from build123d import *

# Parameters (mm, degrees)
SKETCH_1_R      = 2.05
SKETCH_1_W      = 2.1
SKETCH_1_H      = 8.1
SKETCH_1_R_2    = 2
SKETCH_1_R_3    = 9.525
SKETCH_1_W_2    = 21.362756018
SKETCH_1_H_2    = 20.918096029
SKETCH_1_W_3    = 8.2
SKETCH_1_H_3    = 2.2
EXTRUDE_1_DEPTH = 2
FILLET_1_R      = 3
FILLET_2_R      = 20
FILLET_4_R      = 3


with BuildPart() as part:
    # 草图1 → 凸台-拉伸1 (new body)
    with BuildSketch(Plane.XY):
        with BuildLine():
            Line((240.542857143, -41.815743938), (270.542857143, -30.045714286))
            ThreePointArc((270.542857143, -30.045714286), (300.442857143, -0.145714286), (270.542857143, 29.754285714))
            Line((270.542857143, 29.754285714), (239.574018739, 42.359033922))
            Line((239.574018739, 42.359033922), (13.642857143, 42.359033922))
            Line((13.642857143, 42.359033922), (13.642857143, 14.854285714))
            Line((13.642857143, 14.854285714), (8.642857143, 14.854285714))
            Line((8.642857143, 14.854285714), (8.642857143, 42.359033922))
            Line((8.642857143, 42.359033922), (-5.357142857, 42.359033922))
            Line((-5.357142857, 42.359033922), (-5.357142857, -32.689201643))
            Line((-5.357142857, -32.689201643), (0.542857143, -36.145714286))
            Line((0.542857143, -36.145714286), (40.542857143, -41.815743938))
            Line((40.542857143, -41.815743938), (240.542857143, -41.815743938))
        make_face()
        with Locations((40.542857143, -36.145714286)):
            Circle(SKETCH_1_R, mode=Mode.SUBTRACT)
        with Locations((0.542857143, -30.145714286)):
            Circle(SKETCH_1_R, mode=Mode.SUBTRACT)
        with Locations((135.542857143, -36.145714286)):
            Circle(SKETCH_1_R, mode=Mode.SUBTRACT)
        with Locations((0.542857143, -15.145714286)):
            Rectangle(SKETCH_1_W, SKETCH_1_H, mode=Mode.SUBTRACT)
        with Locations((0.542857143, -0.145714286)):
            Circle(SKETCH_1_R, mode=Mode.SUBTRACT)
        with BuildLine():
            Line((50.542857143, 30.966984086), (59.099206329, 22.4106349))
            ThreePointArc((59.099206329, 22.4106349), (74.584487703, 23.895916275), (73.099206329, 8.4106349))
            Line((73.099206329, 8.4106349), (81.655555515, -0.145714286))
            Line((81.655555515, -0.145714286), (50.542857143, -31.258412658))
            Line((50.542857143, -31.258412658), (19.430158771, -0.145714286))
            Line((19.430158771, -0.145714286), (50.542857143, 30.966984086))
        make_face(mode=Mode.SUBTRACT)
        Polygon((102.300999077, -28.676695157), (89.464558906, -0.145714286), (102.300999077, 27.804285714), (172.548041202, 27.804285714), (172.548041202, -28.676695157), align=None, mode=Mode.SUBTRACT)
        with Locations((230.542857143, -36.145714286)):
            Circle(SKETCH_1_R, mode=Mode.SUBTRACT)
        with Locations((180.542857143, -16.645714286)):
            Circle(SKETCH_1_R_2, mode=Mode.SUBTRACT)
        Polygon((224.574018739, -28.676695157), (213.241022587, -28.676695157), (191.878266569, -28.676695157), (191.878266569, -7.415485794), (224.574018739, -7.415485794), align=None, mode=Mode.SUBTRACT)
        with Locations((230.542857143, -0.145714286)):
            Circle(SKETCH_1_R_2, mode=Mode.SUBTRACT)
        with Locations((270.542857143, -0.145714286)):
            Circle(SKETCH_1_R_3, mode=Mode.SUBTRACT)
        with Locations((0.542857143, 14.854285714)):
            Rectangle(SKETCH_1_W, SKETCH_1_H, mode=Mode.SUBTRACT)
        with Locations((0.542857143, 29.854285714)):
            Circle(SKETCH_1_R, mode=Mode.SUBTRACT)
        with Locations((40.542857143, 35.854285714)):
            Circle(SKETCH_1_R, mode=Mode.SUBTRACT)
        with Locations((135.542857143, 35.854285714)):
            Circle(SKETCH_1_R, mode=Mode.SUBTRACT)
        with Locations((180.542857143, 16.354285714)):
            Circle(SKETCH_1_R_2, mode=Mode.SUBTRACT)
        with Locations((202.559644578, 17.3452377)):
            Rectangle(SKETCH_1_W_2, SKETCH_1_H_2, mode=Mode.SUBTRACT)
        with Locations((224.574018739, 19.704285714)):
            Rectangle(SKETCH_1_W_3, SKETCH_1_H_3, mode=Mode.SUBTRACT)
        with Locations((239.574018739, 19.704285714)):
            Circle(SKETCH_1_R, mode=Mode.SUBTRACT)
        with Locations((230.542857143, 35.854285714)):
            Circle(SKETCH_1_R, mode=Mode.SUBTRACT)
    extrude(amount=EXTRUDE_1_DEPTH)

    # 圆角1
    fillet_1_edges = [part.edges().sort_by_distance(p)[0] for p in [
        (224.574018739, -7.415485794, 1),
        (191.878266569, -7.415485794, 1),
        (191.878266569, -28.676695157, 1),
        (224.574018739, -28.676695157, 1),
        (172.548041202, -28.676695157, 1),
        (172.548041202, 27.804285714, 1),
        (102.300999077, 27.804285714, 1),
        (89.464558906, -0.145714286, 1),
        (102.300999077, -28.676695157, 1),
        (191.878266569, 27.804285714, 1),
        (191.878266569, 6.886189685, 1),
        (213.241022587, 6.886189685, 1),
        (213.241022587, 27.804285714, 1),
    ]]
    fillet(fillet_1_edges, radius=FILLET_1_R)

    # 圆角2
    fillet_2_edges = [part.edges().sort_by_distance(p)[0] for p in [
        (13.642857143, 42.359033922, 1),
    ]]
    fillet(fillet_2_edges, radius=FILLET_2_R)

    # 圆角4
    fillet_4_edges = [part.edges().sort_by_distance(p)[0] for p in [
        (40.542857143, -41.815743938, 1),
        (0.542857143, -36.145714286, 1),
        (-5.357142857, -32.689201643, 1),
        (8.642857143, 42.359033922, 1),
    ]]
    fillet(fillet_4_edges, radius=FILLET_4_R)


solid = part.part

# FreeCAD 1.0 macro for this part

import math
import FreeCAD as App
import Part
import Sketcher

V = App.Vector
Q = App.Units.Quantity


def edges_at(feature, points):
    """Names of the edges that pass closest to the given points."""
    edges = feature.Shape.Edges
    near = lambda p: min(range(len(edges)), key=lambda i: edges[i].distToShape(Part.Vertex(*p))[0])
    return sorted({f"Edge{near(p) + 1}" for p in points})

doc = App.newDocument("Part")
body = doc.addObject("PartDesign::Body", "Body")

# Sketch on XY plane
sketch1 = body.newObject("Sketcher::SketchObject", "Sketch")
sketch1.AttachmentSupport = (doc.getObject("XY_Plane"), [""])
sketch1.MapMode = "FlatFace"
sketch1.addGeometry([
    Part.LineSegment(V(240.5, -41.8, 0), V(270.5, -30, 0)),  # 0
    Part.ArcOfCircle(Part.Circle(V(270.5, -0.1, 0), V(0, 0, 1), 29.9), math.radians(-90), math.radians(90)),  # 1
    Part.LineSegment(V(270.5, 29.8, 0), V(239.6, 42.4, 0)),  # 2
    Part.LineSegment(V(239.6, 42.4, 0), V(13.6, 42.4, 0)),  # 3
    Part.LineSegment(V(13.6, 42.4, 0), V(13.6, 14.9, 0)),  # 4
    Part.LineSegment(V(13.6, 14.9, 0), V(8.6, 14.9, 0)),  # 5
    Part.LineSegment(V(8.6, 14.9, 0), V(8.6, 42.4, 0)),  # 6
    Part.LineSegment(V(8.6, 42.4, 0), V(-5.4, 42.4, 0)),  # 7
    Part.LineSegment(V(-5.4, 42.4, 0), V(-5.4, -32.7, 0)),  # 8
    Part.LineSegment(V(-5.4, -32.7, 0), V(0.5, -36.1, 0)),  # 9
    Part.LineSegment(V(0.5, -36.1, 0), V(40.5, -41.8, 0)),  # 10
    Part.LineSegment(V(40.5, -41.8, 0), V(240.5, -41.8, 0)),  # 11
    Part.Circle(V(0.5, -30.1, 0), V(0, 0, 1), 2),  # 12
    Part.Circle(V(40.5, -36.1, 0), V(0, 0, 1), 2),  # 13
    Part.Circle(V(135.5, -36.1, 0), V(0, 0, 1), 2),  # 14
    Part.LineSegment(V(1.6, -19.2, 0), V(-0.5, -19.2, 0)),  # 15
    Part.LineSegment(V(-0.5, -19.2, 0), V(-0.5, -11.1, 0)),  # 16
    Part.LineSegment(V(-0.5, -11.1, 0), V(1.6, -11.1, 0)),  # 17
    Part.LineSegment(V(1.6, -11.1, 0), V(1.6, -19.2, 0)),  # 18
    Part.LineSegment(V(172.5, -28.7, 0), V(102.3, -28.7, 0)),  # 19
    Part.LineSegment(V(102.3, -28.7, 0), V(89.5, -0.1, 0)),  # 20
    Part.LineSegment(V(89.5, -0.1, 0), V(102.3, 27.8, 0)),  # 21
    Part.LineSegment(V(102.3, 27.8, 0), V(172.5, 27.8, 0)),  # 22
    Part.LineSegment(V(172.5, 27.8, 0), V(172.5, -28.7, 0)),  # 23
    Part.Circle(V(230.5, -36.1, 0), V(0, 0, 1), 2),  # 24
    Part.Circle(V(180.5, -16.6, 0), V(0, 0, 1), 2),  # 25
    Part.LineSegment(V(224.6, -7.4, 0), V(224.6, -28.7, 0)),  # 26
    Part.LineSegment(V(224.6, -28.7, 0), V(191.9, -28.7, 0)),  # 27
    Part.LineSegment(V(191.9, -28.7, 0), V(191.9, -7.4, 0)),  # 28
    Part.LineSegment(V(191.9, -7.4, 0), V(224.6, -7.4, 0)),  # 29
    Part.Circle(V(0.5, -0.1, 0), V(0, 0, 1), 2),  # 30
    Part.LineSegment(V(19.4, -0.1, 0), V(50.5, 31, 0)),  # 31
    Part.LineSegment(V(50.5, 31, 0), V(59.1, 22.4, 0)),  # 32
    Part.ArcOfCircle(Part.Circle(V(67.5, 16.8, 0), V(0, 0, 1), 10.1), math.radians(-56), math.radians(146)),  # 33
    Part.LineSegment(V(73.1, 8.4, 0), V(81.7, -0.1, 0)),  # 34
    Part.LineSegment(V(81.7, -0.1, 0), V(50.5, -31.3, 0)),  # 35
    Part.LineSegment(V(50.5, -31.3, 0), V(19.4, -0.1, 0)),  # 36
    Part.LineSegment(V(1.6, 10.8, 0), V(-0.5, 10.8, 0)),  # 37
    Part.LineSegment(V(-0.5, 10.8, 0), V(-0.5, 18.9, 0)),  # 38
    Part.LineSegment(V(-0.5, 18.9, 0), V(1.6, 18.9, 0)),  # 39
    Part.LineSegment(V(1.6, 18.9, 0), V(1.6, 10.8, 0)),  # 40
    Part.Circle(V(0.5, 29.9, 0), V(0, 0, 1), 2),  # 41
    Part.Circle(V(40.5, 35.9, 0), V(0, 0, 1), 2),  # 42
    Part.Circle(V(135.5, 35.9, 0), V(0, 0, 1), 2),  # 43
    Part.Circle(V(180.5, 16.4, 0), V(0, 0, 1), 2),  # 44
    Part.LineSegment(V(213.2, 6.9, 0), V(191.9, 6.9, 0)),  # 45
    Part.LineSegment(V(191.9, 6.9, 0), V(191.9, 27.8, 0)),  # 46
    Part.LineSegment(V(191.9, 27.8, 0), V(213.2, 27.8, 0)),  # 47
    Part.LineSegment(V(213.2, 27.8, 0), V(213.2, 6.9, 0)),  # 48
    Part.Circle(V(230.5, -0.1, 0), V(0, 0, 1), 2),  # 49
    Part.Circle(V(270.5, -0.1, 0), V(0, 0, 1), 9.5),  # 50
    Part.LineSegment(V(228.7, 18.6, 0), V(220.5, 18.6, 0)),  # 51
    Part.LineSegment(V(220.5, 18.6, 0), V(220.5, 20.8, 0)),  # 52
    Part.LineSegment(V(220.5, 20.8, 0), V(228.7, 20.8, 0)),  # 53
    Part.LineSegment(V(228.7, 20.8, 0), V(228.7, 18.6, 0)),  # 54
    Part.Circle(V(239.6, 19.7, 0), V(0, 0, 1), 2),  # 55
    Part.Circle(V(230.5, 35.9, 0), V(0, 0, 1), 2),  # 56
], False)
sketch1.addConstraint([
    Sketcher.Constraint("Coincident", 0, 2, 1, 1),
    Sketcher.Constraint("Coincident", 1, 2, 2, 1),
    Sketcher.Constraint("Coincident", 2, 2, 3, 1),
    Sketcher.Constraint("Coincident", 3, 2, 4, 1),
    Sketcher.Constraint("Coincident", 4, 2, 5, 1),
    Sketcher.Constraint("Coincident", 5, 2, 6, 1),
    Sketcher.Constraint("Coincident", 6, 2, 7, 1),
    Sketcher.Constraint("Coincident", 7, 2, 8, 1),
    Sketcher.Constraint("Coincident", 8, 2, 9, 1),
    Sketcher.Constraint("Coincident", 9, 2, 10, 1),
    Sketcher.Constraint("Coincident", 10, 2, 11, 1),
    Sketcher.Constraint("Coincident", 11, 2, 0, 1),
    Sketcher.Constraint("Coincident", 15, 2, 16, 1),
    Sketcher.Constraint("Coincident", 16, 2, 17, 1),
    Sketcher.Constraint("Coincident", 17, 2, 18, 1),
    Sketcher.Constraint("Coincident", 18, 2, 15, 1),
    Sketcher.Constraint("Coincident", 19, 2, 20, 1),
    Sketcher.Constraint("Coincident", 20, 2, 21, 1),
    Sketcher.Constraint("Coincident", 21, 2, 22, 1),
    Sketcher.Constraint("Coincident", 22, 2, 23, 1),
    Sketcher.Constraint("Coincident", 23, 2, 19, 1),
    Sketcher.Constraint("Coincident", 26, 2, 27, 1),
    Sketcher.Constraint("Coincident", 27, 2, 28, 1),
    Sketcher.Constraint("Coincident", 28, 2, 29, 1),
    Sketcher.Constraint("Coincident", 29, 2, 26, 1),
    Sketcher.Constraint("Coincident", 31, 2, 32, 1),
    Sketcher.Constraint("Coincident", 32, 2, 33, 2),
    Sketcher.Constraint("Coincident", 33, 1, 34, 1),
    Sketcher.Constraint("Coincident", 34, 2, 35, 1),
    Sketcher.Constraint("Coincident", 35, 2, 36, 1),
    Sketcher.Constraint("Coincident", 36, 2, 31, 1),
    Sketcher.Constraint("Coincident", 37, 2, 38, 1),
    Sketcher.Constraint("Coincident", 38, 2, 39, 1),
    Sketcher.Constraint("Coincident", 39, 2, 40, 1),
    Sketcher.Constraint("Coincident", 40, 2, 37, 1),
    Sketcher.Constraint("Coincident", 45, 2, 46, 1),
    Sketcher.Constraint("Coincident", 46, 2, 47, 1),
    Sketcher.Constraint("Coincident", 47, 2, 48, 1),
    Sketcher.Constraint("Coincident", 48, 2, 45, 1),
    Sketcher.Constraint("Coincident", 51, 2, 52, 1),
    Sketcher.Constraint("Coincident", 52, 2, 53, 1),
    Sketcher.Constraint("Coincident", 53, 2, 54, 1),
    Sketcher.Constraint("Coincident", 54, 2, 51, 1),
    Sketcher.Constraint("Horizontal", 3),
    Sketcher.Constraint("Vertical", 4),
    Sketcher.Constraint("Horizontal", 5),
    Sketcher.Constraint("Vertical", 6),
    Sketcher.Constraint("Horizontal", 7),
    Sketcher.Constraint("Vertical", 8),
    Sketcher.Constraint("Horizontal", 11),
    Sketcher.Constraint("Horizontal", 15),
    Sketcher.Constraint("Vertical", 16),
    Sketcher.Constraint("Horizontal", 17),
    Sketcher.Constraint("Vertical", 18),
    Sketcher.Constraint("Horizontal", 19),
    Sketcher.Constraint("Horizontal", 22),
    Sketcher.Constraint("Vertical", 23),
    Sketcher.Constraint("Vertical", 26),
    Sketcher.Constraint("Horizontal", 27),
    Sketcher.Constraint("Vertical", 28),
    Sketcher.Constraint("Horizontal", 29),
    Sketcher.Constraint("Horizontal", 37),
    Sketcher.Constraint("Vertical", 38),
    Sketcher.Constraint("Horizontal", 39),
    Sketcher.Constraint("Vertical", 40),
    Sketcher.Constraint("Horizontal", 45),
    Sketcher.Constraint("Vertical", 46),
    Sketcher.Constraint("Horizontal", 47),
    Sketcher.Constraint("Vertical", 48),
    Sketcher.Constraint("Horizontal", 51),
    Sketcher.Constraint("Vertical", 52),
    Sketcher.Constraint("Horizontal", 53),
    Sketcher.Constraint("Vertical", 54),
    Sketcher.Constraint("Coincident", 50, 3, 1, 3),
    Sketcher.Constraint("Equal", 12, 13),
    Sketcher.Constraint("Equal", 13, 14),
    Sketcher.Constraint("Equal", 14, 24),
    Sketcher.Constraint("Equal", 24, 30),
    Sketcher.Constraint("Equal", 30, 41),
    Sketcher.Constraint("Equal", 41, 42),
    Sketcher.Constraint("Equal", 42, 43),
    Sketcher.Constraint("Equal", 25, 44),
    Sketcher.Constraint("Equal", 44, 49),
    Sketcher.Constraint("Equal", 43, 55),
    Sketcher.Constraint("Equal", 55, 56),
    Sketcher.Constraint("Perpendicular", 31, 32),
    Sketcher.Constraint("Parallel", 32, 34),
    Sketcher.Constraint("Perpendicular", 34, 35),
    Sketcher.Constraint("Perpendicular", 35, 36),
    Sketcher.Constraint("Horizontal", 13, 3, 14, 3),
    Sketcher.Constraint("Horizontal", 14, 3, 24, 3),
    Sketcher.Constraint("Horizontal", 1, 3, 30, 3),
    Sketcher.Constraint("Horizontal", 42, 3, 43, 3),
    Sketcher.Constraint("Horizontal", 30, 3, 49, 3),
    Sketcher.Constraint("Horizontal", 43, 3, 56, 3),
    Sketcher.Constraint("Horizontal", 3, 2, 6, 2),
    Sketcher.Constraint("Horizontal", 24, 3, 9, 2),
    Sketcher.Constraint("Horizontal", 50, 3, 20, 2),
    Sketcher.Constraint("Horizontal", 23, 2, 26, 2),
    Sketcher.Constraint("Horizontal", 20, 2, 34, 2),
    Sketcher.Constraint("Horizontal", 34, 2, 36, 2),
    Sketcher.Constraint("Horizontal", 22, 2, 46, 2),
    Sketcher.Constraint("Vertical", 12, 3, 30, 3),
    Sketcher.Constraint("Vertical", 30, 3, 41, 3),
    Sketcher.Constraint("Vertical", 13, 3, 42, 3),
    Sketcher.Constraint("Vertical", 14, 3, 43, 3),
    Sketcher.Constraint("Vertical", 25, 3, 44, 3),
    Sketcher.Constraint("Vertical", 24, 3, 49, 3),
    Sketcher.Constraint("Vertical", 49, 3, 56, 3),
    Sketcher.Constraint("Vertical", 50, 3, 0, 2),
    Sketcher.Constraint("Vertical", 0, 2, 1, 2),
    Sketcher.Constraint("Vertical", 55, 3, 2, 2),
    Sketcher.Constraint("Vertical", 41, 3, 9, 2),
    Sketcher.Constraint("Vertical", 42, 3, 10, 2),
    Sketcher.Constraint("Vertical", 19, 2, 21, 2),
    Sketcher.Constraint("Vertical", 31, 2, 35, 2),
    Sketcher.Constraint("Vertical", 16, 2, 37, 2),
    Sketcher.Constraint("Vertical", 18, 2, 39, 2),
    Sketcher.Constraint("Vertical", 28, 2, 45, 2),
    Sketcher.Constraint("Equal", 18, 38),
    Sketcher.Constraint("Equal", 32, 34),
    Sketcher.Constraint("Equal", 31, 35),
    Sketcher.Constraint("Diameter", 25, Q("4 mm")),
    Sketcher.Constraint("Diameter", 12, Q("4.1 mm")),
    Sketcher.Constraint("Radius", 1, Q("29.9 mm")),
    Sketcher.Constraint("Diameter", 50, Q("19.05 mm")),
    Sketcher.Constraint("DistanceX", 5, 2, 5, 1, Q("5 mm")),
    Sketcher.Constraint("DistanceX", 7, 2, 7, 1, Q("14 mm")),
    Sketcher.Constraint("DistanceX", 11, 1, 11, 2, Q("200 mm")),
    Sketcher.Constraint("Distance", 31, Q("44 mm")),
    Sketcher.Constraint("DistanceX", 15, 2, 15, 1, Q("2.1 mm")),
    Sketcher.Constraint("DistanceX", 51, 2, 51, 1, Q("8.2 mm")),
    Sketcher.Constraint("DistanceY", 16, 1, 16, 2, Q("8.1 mm")),
    Sketcher.Constraint("DistanceY", 52, 1, 52, 2, Q("2.2 mm")),
    Sketcher.Constraint("DistanceX", 12, 3, 1, 3, Q("270 mm")),
    Sketcher.Constraint("DistanceY", 12, 3, 1, 3, Q("30 mm")),
    Sketcher.Constraint("DistanceX", 12, 3, 13, 3, Q("40 mm")),
    Sketcher.Constraint("DistanceY", 13, 3, 12, 3, Q("6 mm")),
    Sketcher.Constraint("DistanceX", 13, 3, 14, 3, Q("95 mm")),
    Sketcher.Constraint("DistanceX", 24, 3, 1, 3, Q("40 mm")),
    Sketcher.Constraint("DistanceX", 14, 3, 25, 3, Q("45 mm")),
    Sketcher.Constraint("DistanceY", 30, 3, 41, 3, Q("30 mm")),
    Sketcher.Constraint("DistanceY", 41, 3, 42, 3, Q("6 mm")),
    Sketcher.Constraint("DistanceY", 25, 3, 44, 3, Q("33 mm")),
    Sketcher.Constraint("DistanceY", 30, 3, 4, 2, Q("15 mm")),
    Sketcher.Constraint("DistanceX", 29, 2, 55, 3, Q("15 mm")),
    Sketcher.Constraint("DistanceX", 42, 3, 31, 2, Q("10 mm")),
    Sketcher.Constraint("DistanceX", 32, 2, 33, 1, Q("14 mm")),
    Sketcher.Constraint("DistanceY", 52, 2, 47, 2, Q("7 mm")),
    Sketcher.Constraint("DistanceY", 14, 3, 25, 3, Q("19.5 mm")),
    Sketcher.Constraint("DistanceX", 41, 3, 3, 2, Q("13.1 mm")),
    Sketcher.Constraint("DistanceY", 16, 2, 37, 2, Q("21.9 mm")),
    Sketcher.Constraint("DistanceY", 55, 3, 47, 2, Q("8.1 mm")),
    Sketcher.Constraint("DistanceX", 51, 2, 55, 3, Q("19.1 mm")),
    Sketcher.Constraint("DistanceY", 49, 3, 55, 3, Q("19.85 mm")),
    Sketcher.Constraint("DistanceX", 15, 2, 12, 3, Q("1.05 mm")),
    Sketcher.Constraint("DistanceY", 12, 3, 15, 2, Q("10.95 mm")),
    Sketcher.Constraint("DistanceX", -1, 1, 19, 2, Q("102.300999 mm")),
    Sketcher.Constraint("Radius", 33, Q("10.083333 mm")),
    Sketcher.Constraint("DistanceX", 3, 2, 3, 1, Q("225.931162 mm")),
    Sketcher.Constraint("DistanceY", 4, 2, 4, 1, Q("27.504748 mm")),
    Sketcher.Constraint("DistanceY", 23, 2, 23, 1, Q("56.480981 mm")),
    Sketcher.Constraint("DistanceY", 26, 2, 26, 1, Q("21.261209 mm")),
    Sketcher.Constraint("DistanceY", 8, 2, -1, 1, Q("32.689202 mm")),
    Sketcher.Constraint("DistanceX", 20, 2, 14, 3, Q("46.078298 mm")),
    Sketcher.Constraint("DistanceX", 19, 2, 19, 1, Q("70.247042 mm")),
    Sketcher.Constraint("DistanceX", 27, 2, 27, 1, Q("32.695752 mm")),
    Sketcher.Constraint("DistanceX", 45, 2, 45, 1, Q("21.362756 mm")),
    Sketcher.Constraint("DistanceY", 8, 2, 8, 1, Q("75.048236 mm")),
    Sketcher.Constraint("DistanceY", 46, 1, 46, 2, Q("20.918096 mm")),
    Sketcher.Constraint("DistanceX", -1, 1, 55, 3, Q("239.574019 mm")),
    Sketcher.Constraint("DistanceY", 10, 2, 13, 3, Q("5.67003 mm")),
])
pad1 = body.newObject("PartDesign::Pad", "Pad")
pad1.Profile = sketch1
pad1.Length = 2
doc.recompute()

fillet = body.newObject("PartDesign::Fillet", "Fillet")
fillet.Base = (pad1, edges_at(pad1, [
    (224.574, -7.415, 1),
    (191.878, -7.415, 1),
    (191.878, -28.677, 1),
    (224.574, -28.677, 1),
    (172.548, -28.677, 1),
    (172.548, 27.804, 1),
    (102.301, 27.804, 1),
    (89.465, -0.146, 1),
    (102.301, -28.677, 1),
    (191.878, 27.804, 1),
    (191.878, 6.886, 1),
    (213.241, 6.886, 1),
    (213.241, 27.804, 1),
]))
fillet.Radius = 3
doc.recompute()

fillet2 = body.newObject("PartDesign::Fillet", "Fillet001")
fillet2.Base = (fillet, edges_at(fillet, [(13.643, 42.359, 1)]))
fillet2.Radius = 20
doc.recompute()

fillet3 = body.newObject("PartDesign::Fillet", "Fillet002")
fillet3.Base = (fillet2, edges_at(fillet2, [
    (40.543, -41.816, 1),
    (0.543, -36.146, 1),
    (-5.357, -32.689, 1),
    (8.643, 42.359, 1),
]))
fillet3.Radius = 3

doc.recompute()
